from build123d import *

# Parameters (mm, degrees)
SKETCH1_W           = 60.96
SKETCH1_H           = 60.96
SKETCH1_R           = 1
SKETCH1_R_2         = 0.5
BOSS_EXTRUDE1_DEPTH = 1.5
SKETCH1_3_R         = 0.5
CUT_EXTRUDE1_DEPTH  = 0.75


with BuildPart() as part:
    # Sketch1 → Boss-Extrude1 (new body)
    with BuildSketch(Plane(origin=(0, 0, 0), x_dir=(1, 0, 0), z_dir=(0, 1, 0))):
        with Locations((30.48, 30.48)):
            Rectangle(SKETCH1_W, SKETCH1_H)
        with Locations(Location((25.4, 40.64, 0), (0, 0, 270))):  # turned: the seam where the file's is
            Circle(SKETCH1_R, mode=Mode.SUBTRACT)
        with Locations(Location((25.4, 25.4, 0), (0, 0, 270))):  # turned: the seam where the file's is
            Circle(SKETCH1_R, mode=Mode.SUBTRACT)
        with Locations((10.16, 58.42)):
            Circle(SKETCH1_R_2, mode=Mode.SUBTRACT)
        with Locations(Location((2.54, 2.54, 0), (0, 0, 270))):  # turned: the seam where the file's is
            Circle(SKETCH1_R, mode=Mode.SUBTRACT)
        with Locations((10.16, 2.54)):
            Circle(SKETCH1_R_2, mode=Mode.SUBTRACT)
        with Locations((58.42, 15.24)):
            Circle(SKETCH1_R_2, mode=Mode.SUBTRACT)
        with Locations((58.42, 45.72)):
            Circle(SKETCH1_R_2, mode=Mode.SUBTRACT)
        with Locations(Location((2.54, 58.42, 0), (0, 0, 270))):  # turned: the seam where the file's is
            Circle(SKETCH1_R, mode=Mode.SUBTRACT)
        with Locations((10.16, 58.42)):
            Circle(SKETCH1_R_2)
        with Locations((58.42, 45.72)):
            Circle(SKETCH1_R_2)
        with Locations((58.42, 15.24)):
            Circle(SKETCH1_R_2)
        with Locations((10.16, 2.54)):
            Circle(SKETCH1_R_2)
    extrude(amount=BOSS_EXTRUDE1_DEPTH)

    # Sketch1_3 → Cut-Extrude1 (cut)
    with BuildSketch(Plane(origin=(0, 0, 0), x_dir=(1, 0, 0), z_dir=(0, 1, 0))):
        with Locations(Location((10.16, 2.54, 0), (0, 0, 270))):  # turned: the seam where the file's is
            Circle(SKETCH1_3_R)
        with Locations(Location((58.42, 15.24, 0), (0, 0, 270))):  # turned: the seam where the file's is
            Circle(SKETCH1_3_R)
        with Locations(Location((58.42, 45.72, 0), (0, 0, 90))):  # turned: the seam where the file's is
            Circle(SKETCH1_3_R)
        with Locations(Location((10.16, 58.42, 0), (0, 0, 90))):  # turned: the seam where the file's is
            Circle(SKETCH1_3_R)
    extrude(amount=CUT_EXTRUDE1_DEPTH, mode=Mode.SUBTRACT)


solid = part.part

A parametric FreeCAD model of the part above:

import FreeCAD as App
import Part
import Sketcher


def add_polygon(sketch, points):
    """Adds a closed chain of lines whose ends are joined by coincident constraints."""
    first, n = sketch.GeometryCount, len(points)
    for a, b in zip(points, points[1:] + points[:1]):
        sketch.addGeometry(Part.LineSegment(App.Vector(*a, 0), App.Vector(*b, 0)), False)
    for i in range(n):
        sketch.addConstraint(Sketcher.Constraint("Coincident", first + i, 2, first + (i + 1) % n, 1))

doc = App.newDocument("Part")
body = doc.addObject("PartDesign::Body", "Body")

# Sketch on XZ plane
sketch1 = body.newObject("Sketcher::SketchObject", "Sketch")
sketch1.AttachmentSupport = (doc.getObject("XZ_Plane"), [""])
sketch1.MapMode = "FlatFace"
add_polygon(sketch1, [(0, -61), (0, 0), (61, 0), (61, -61)])  # lines 0-3
sketch1.addGeometry(Part.Circle(App.Vector(2.5, -2.5, 0), App.Vector(0, 0, 1), 1), False)  # 4
sketch1.addGeometry(Part.Circle(App.Vector(25.4, -25.4, 0), App.Vector(0, 0, 1), 1), False)  # 5
sketch1.addGeometry(Part.Circle(App.Vector(25.4, -40.6, 0), App.Vector(0, 0, 1), 1), False)  # 6
sketch1.addGeometry(Part.Circle(App.Vector(2.5, -58.4, 0), App.Vector(0, 0, 1), 1), False)  # 7
sketch1.addConstraint(Sketcher.Constraint("Vertical", 0))
sketch1.addConstraint(Sketcher.Constraint("Horizontal", 1))
sketch1.addConstraint(Sketcher.Constraint("Vertical", 2))
sketch1.addConstraint(Sketcher.Constraint("Horizontal", 3))
sketch1.addConstraint(Sketcher.Constraint("Coincident", 0, 2, -1, 1))
sketch1.addConstraint(Sketcher.Constraint("Equal", 4, 5))
sketch1.addConstraint(Sketcher.Constraint("Equal", 5, 6))
sketch1.addConstraint(Sketcher.Constraint("Equal", 6, 7))
sketch1.addConstraint(Sketcher.Constraint("Vertical", 5, 3, 6, 3))
sketch1.addConstraint(Sketcher.Constraint("Vertical", 4, 3, 7, 3))
sketch1.addConstraint(Sketcher.Constraint("Equal", 3, 0))
sketch1.addConstraint(Sketcher.Constraint("Diameter", 4, 2.0))
sketch1.addConstraint(Sketcher.Constraint("DistanceX", 1, 1, 1, 2, 60.96))
sketch1.addConstraint(Sketcher.Constraint("DistanceX", -1, 1, 5, 3, 25.4))
sketch1.addConstraint(Sketcher.Constraint("DistanceY", 5, 3, -1, 1, 25.4))
sketch1.addConstraint(Sketcher.Constraint("DistanceY", 6, 3, 4, 3, 38.1))
sketch1.addConstraint(Sketcher.Constraint("DistanceX", -1, 1, 4, 3, 2.54))
sketch1.addConstraint(Sketcher.Constraint("DistanceY", 4, 3, -1, 1, 2.54))
sketch1.addConstraint(Sketcher.Constraint("DistanceY", 7, 3, -1, 1, 58.42))
pad1 = body.newObject("PartDesign::Pad", "Pad")
pad1.Profile = sketch1
pad1.Length = 1.5
pad1.Reversed = True

# Sketch on XZ plane
sketch2 = body.newObject("Sketcher::SketchObject", "Sketch001")
sketch2.AttachmentSupport = (doc.getObject("XZ_Plane"), [""])
sketch2.MapMode = "FlatFace"
sketch2.addGeometry(Part.Circle(App.Vector(10.2, -2.5, 0), App.Vector(0, 0, 1), 0.5), False)
sketch2.addGeometry(Part.Circle(App.Vector(58.4, -15.2, 0), App.Vector(0, 0, 1), 0.5), False)
sketch2.addGeometry(Part.Circle(App.Vector(58.4, -45.7, 0), App.Vector(0, 0, 1), 0.5), False)
sketch2.addGeometry(Part.Circle(App.Vector(10.2, -58.4, 0), App.Vector(0, 0, 1), 0.5), False)
sketch2.addConstraint(Sketcher.Constraint("Equal", 0, 1))
sketch2.addConstraint(Sketcher.Constraint("Equal", 1, 2))
sketch2.addConstraint(Sketcher.Constraint("Equal", 2, 3))
sketch2.addConstraint(Sketcher.Constraint("Vertical", 1, 3, 2, 3))
sketch2.addConstraint(Sketcher.Constraint("Vertical", 0, 3, 3, 3))
sketch2.addConstraint(Sketcher.Constraint("Diameter", 0, 1.0))
sketch2.addConstraint(Sketcher.Constraint("DistanceY", 1, 3, 0, 3, 12.7))
sketch2.addConstraint(Sketcher.Constraint("DistanceY", 3, 3, 2, 3, 12.7))
sketch2.addConstraint(Sketcher.Constraint("DistanceX", -1, 1, 0, 3, 10.16))
sketch2.addConstraint(Sketcher.Constraint("DistanceY", 0, 3, -1, 1, 2.54))
sketch2.addConstraint(Sketcher.Constraint("DistanceX", -1, 1, 1, 3, 58.42))
sketch2.addConstraint(Sketcher.Constraint("DistanceY", 2, 3, -1, 1, 45.72))
pocket1 = body.newObject("PartDesign::Pocket", "Pocket")
pocket1.Profile = sketch2
pocket1.Length = 0.75

doc.recompute()
